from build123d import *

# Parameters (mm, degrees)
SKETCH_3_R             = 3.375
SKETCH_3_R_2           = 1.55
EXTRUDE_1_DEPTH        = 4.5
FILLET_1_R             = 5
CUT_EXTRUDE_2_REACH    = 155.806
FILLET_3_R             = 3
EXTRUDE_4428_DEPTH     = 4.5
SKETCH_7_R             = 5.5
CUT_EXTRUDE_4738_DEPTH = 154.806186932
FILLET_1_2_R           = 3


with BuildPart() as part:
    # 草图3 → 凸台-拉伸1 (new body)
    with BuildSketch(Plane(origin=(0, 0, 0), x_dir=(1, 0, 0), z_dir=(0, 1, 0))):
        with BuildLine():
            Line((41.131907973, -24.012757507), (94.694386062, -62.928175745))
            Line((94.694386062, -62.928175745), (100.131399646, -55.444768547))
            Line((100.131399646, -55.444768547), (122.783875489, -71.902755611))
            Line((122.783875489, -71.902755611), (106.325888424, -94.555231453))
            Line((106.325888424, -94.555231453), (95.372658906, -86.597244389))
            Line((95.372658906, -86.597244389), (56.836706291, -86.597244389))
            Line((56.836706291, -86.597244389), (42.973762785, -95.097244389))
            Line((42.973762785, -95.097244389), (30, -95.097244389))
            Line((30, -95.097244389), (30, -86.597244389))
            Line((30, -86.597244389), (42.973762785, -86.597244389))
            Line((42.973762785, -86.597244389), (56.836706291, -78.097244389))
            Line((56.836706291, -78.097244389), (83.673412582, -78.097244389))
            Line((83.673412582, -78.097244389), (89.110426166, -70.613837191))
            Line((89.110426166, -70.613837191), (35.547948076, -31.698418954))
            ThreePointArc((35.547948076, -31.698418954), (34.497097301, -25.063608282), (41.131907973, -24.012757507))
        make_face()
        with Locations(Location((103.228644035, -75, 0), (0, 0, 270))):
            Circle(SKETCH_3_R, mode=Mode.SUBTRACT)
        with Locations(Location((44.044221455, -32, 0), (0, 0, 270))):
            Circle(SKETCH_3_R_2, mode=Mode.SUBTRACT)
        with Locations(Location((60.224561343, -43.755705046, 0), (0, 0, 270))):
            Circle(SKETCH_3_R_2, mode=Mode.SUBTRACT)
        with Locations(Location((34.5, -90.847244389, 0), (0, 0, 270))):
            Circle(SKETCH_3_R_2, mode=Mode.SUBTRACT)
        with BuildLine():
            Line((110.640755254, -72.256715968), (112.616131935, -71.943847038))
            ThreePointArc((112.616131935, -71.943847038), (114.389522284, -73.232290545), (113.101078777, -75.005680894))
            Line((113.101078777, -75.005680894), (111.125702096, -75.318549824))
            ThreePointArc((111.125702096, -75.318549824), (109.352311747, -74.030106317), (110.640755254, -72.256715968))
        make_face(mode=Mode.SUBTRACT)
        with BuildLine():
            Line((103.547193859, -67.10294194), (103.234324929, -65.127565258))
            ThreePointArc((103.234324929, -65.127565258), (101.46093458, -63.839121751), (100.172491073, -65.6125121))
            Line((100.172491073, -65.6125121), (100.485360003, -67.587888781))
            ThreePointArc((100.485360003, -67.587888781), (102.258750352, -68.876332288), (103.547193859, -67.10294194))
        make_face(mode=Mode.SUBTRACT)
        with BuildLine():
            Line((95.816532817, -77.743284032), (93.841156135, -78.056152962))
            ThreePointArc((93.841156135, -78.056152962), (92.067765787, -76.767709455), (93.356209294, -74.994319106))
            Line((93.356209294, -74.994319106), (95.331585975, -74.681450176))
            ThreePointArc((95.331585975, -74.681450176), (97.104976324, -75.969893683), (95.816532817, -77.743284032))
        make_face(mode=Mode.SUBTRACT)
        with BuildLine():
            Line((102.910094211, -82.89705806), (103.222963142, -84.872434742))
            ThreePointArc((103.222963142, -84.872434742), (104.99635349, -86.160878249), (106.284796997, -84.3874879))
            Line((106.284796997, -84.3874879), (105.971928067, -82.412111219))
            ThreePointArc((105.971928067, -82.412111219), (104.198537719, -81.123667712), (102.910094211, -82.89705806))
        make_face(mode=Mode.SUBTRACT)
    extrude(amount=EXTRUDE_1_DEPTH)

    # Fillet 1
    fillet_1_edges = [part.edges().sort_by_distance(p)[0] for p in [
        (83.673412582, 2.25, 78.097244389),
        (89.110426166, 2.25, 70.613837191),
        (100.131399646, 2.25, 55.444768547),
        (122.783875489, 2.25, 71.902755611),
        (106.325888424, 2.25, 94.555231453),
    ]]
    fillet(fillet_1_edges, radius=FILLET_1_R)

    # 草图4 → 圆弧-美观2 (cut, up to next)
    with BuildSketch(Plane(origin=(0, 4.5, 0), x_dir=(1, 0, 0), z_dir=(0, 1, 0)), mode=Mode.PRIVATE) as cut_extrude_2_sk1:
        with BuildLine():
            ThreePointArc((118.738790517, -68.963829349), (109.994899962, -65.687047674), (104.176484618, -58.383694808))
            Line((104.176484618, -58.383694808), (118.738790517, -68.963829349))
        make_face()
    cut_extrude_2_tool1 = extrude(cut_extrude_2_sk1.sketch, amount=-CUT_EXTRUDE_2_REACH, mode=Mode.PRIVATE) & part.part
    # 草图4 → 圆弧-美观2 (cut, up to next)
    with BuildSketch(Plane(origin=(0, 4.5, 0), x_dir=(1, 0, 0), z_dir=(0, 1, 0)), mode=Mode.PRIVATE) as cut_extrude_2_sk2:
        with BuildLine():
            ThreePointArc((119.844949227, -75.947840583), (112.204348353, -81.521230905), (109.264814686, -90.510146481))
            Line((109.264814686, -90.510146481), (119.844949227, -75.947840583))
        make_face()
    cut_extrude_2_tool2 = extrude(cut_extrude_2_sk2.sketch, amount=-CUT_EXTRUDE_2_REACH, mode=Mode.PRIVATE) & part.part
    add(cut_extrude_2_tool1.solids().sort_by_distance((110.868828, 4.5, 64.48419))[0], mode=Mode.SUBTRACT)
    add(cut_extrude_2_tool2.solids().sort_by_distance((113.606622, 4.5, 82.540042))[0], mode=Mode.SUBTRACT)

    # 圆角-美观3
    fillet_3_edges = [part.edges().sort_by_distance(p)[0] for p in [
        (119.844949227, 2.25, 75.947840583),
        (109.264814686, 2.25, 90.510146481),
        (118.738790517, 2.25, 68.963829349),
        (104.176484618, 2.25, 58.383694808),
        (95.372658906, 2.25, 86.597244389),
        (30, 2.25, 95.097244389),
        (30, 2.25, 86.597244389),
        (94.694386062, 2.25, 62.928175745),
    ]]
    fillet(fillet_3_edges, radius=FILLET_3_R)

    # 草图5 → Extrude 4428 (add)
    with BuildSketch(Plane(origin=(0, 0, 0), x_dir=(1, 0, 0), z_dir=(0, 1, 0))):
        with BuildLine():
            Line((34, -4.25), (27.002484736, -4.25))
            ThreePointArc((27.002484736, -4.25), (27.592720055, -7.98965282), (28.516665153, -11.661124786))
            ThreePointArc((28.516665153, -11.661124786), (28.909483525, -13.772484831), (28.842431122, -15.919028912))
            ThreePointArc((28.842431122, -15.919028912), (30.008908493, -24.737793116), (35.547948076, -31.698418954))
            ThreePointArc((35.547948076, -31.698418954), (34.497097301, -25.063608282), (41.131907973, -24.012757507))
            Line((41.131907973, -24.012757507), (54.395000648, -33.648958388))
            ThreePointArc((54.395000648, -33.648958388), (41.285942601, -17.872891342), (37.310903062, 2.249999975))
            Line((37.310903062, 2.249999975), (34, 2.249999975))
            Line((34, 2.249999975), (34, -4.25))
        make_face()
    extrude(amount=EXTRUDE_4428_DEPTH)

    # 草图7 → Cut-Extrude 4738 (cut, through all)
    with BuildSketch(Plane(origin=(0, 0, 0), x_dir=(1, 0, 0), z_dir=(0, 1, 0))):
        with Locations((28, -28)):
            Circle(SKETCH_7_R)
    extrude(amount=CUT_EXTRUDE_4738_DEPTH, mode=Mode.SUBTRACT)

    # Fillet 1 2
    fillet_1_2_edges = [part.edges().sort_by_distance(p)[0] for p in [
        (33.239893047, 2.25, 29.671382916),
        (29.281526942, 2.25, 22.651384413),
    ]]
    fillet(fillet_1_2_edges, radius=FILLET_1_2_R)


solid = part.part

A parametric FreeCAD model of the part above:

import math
import FreeCAD as App
import Part
import Sketcher

V = App.Vector
Q = App.Units.Quantity


def edges_at(feature, points):
    """Names of the edges that pass closest to the given points."""
    edges = feature.Shape.Edges
    near = lambda p: min(range(len(edges)), key=lambda i: edges[i].distToShape(Part.Vertex(*p))[0])
    return sorted({f"Edge{near(p) + 1}" for p in points})

doc = App.newDocument("Part")
body = doc.addObject("PartDesign::Body", "Body")

sketch1 = body.newObject("Sketcher::SketchObject", "Sketch")
sketch1.AttachmentSupport = (doc.getObject("XZ_Plane"), [""])
sketch1.MapMode = "FlatFace"
sketch1.addGeometry([
    Part.LineSegment(V(94.7, 62.9, 0), V(41.1, 24, 0)),
    Part.ArcOfCircle(Part.Circle(V(38.3, 27.9, 0), V(0, 0, 1), 4.8), math.radians(126), math.radians(306)),
    Part.LineSegment(V(35.5, 31.7, 0), V(89.1, 70.6, 0)),
    Part.LineSegment(V(89.1, 70.6, 0), V(83.7, 78.1, 0)),
    Part.LineSegment(V(83.7, 78.1, 0), V(56.8, 78.1, 0)),
    Part.LineSegment(V(56.8, 78.1, 0), V(43, 86.6, 0)),
    Part.LineSegment(V(43, 86.6, 0), V(30, 86.6, 0)),
    Part.LineSegment(V(30, 86.6, 0), V(30, 95.1, 0)),
    Part.LineSegment(V(30, 95.1, 0), V(43, 95.1, 0)),
    Part.LineSegment(V(43, 95.1, 0), V(56.8, 86.6, 0)),
    Part.LineSegment(V(56.8, 86.6, 0), V(95.4, 86.6, 0)),
    Part.LineSegment(V(95.4, 86.6, 0), V(106.3, 94.6, 0)),
    Part.LineSegment(V(106.3, 94.6, 0), V(122.8, 71.9, 0)),
    Part.LineSegment(V(122.8, 71.9, 0), V(100.1, 55.4, 0)),
    Part.LineSegment(V(100.1, 55.4, 0), V(94.7, 62.9, 0)),
    Part.ArcOfCircle(Part.Circle(V(104.4, 82.7, 0), V(0, 0, 1), 1.6), math.radians(171), math.radians(351)),
    Part.LineSegment(V(106, 82.4, 0), V(106.3, 84.4, 0)),
    Part.ArcOfCircle(Part.Circle(V(104.8, 84.6, 0), V(0, 0, 1), 1.6), math.radians(-9), math.radians(171)),
    Part.LineSegment(V(103.2, 84.9, 0), V(102.9, 82.9, 0)),
    Part.LineSegment(V(110.6, 72.3, 0), V(112.6, 71.9, 0)),
    Part.ArcOfCircle(Part.Circle(V(112.9, 73.5, 0), V(0, 0, 1), 1.6), math.radians(-99), math.radians(81)),
    Part.LineSegment(V(113.1, 75, 0), V(111.1, 75.3, 0)),
    Part.ArcOfCircle(Part.Circle(V(110.9, 73.8, 0), V(0, 0, 1), 1.6), math.radians(81), math.radians(261)),
    Part.Circle(V(103.2, 75, 0), V(0, 0, 1), 3.4),
    Part.LineSegment(V(95.8, 77.7, 0), V(93.8, 78.1, 0)),
    Part.ArcOfCircle(Part.Circle(V(93.6, 76.5, 0), V(0, 0, 1), 1.6), math.radians(81), math.radians(261)),
    Part.LineSegment(V(93.4, 75, 0), V(95.3, 74.7, 0)),
    Part.ArcOfCircle(Part.Circle(V(95.6, 76.2, 0), V(0, 0, 1), 1.6), math.radians(-99), math.radians(81)),
    Part.ArcOfCircle(Part.Circle(V(102, 67.3, 0), V(0, 0, 1), 1.6), math.radians(-9), math.radians(171)),
    Part.LineSegment(V(100.5, 67.6, 0), V(100.2, 65.6, 0)),
    Part.ArcOfCircle(Part.Circle(V(101.7, 65.4, 0), V(0, 0, 1), 1.6), math.radians(171), math.radians(351)),
    Part.LineSegment(V(103.2, 65.1, 0), V(103.5, 67.1, 0)),
    Part.Circle(V(34.5, 90.8, 0), V(0, 0, 1), 1.6),
    Part.Circle(V(60.2, 43.8, 0), V(0, 0, 1), 1.6),
    Part.Circle(V(44, 32, 0), V(0, 0, 1), 1.6),
], False)
sketch1.addConstraint([
    Sketcher.Constraint("Tangent", 0, 2, 1, 2),
    Sketcher.Constraint("Tangent", 1, 1, 2, 1),
    Sketcher.Constraint("Coincident", 2, 2, 3, 1),
    Sketcher.Constraint("Coincident", 3, 2, 4, 1),
    Sketcher.Constraint("Coincident", 4, 2, 5, 1),
    Sketcher.Constraint("Coincident", 5, 2, 6, 1),
    Sketcher.Constraint("Coincident", 6, 2, 7, 1),
    Sketcher.Constraint("Coincident", 7, 2, 8, 1),
    Sketcher.Constraint("Coincident", 8, 2, 9, 1),
    Sketcher.Constraint("Coincident", 9, 2, 10, 1),
    Sketcher.Constraint("Coincident", 10, 2, 11, 1),
    Sketcher.Constraint("Coincident", 11, 2, 12, 1),
    Sketcher.Constraint("Coincident", 12, 2, 13, 1),
    Sketcher.Constraint("Coincident", 13, 2, 14, 1),
    Sketcher.Constraint("Coincident", 14, 2, 0, 1),
    Sketcher.Constraint("Tangent", 15, 2, 16, 1),
    Sketcher.Constraint("Tangent", 16, 2, 17, 1),
    Sketcher.Constraint("Tangent", 17, 2, 18, 1),
    Sketcher.Constraint("Tangent", 18, 2, 15, 1),
    Sketcher.Constraint("Tangent", 19, 2, 20, 1),
    Sketcher.Constraint("Tangent", 20, 2, 21, 1),
    Sketcher.Constraint("Tangent", 21, 2, 22, 1),
    Sketcher.Constraint("Tangent", 22, 2, 19, 1),
    Sketcher.Constraint("Tangent", 24, 2, 25, 1),
    Sketcher.Constraint("Tangent", 25, 2, 26, 1),
    Sketcher.Constraint("Tangent", 26, 2, 27, 1),
    Sketcher.Constraint("Tangent", 27, 2, 24, 1),
    Sketcher.Constraint("Tangent", 28, 2, 29, 1),
    Sketcher.Constraint("Tangent", 29, 2, 30, 1),
    Sketcher.Constraint("Tangent", 30, 2, 31, 1),
    Sketcher.Constraint("Tangent", 31, 2, 28, 1),
    Sketcher.Constraint("Horizontal", 4),
    Sketcher.Constraint("Horizontal", 6),
    Sketcher.Constraint("Vertical", 7),
    Sketcher.Constraint("Horizontal", 8),
    Sketcher.Constraint("Horizontal", 10),
    Sketcher.Constraint("Equal", 15, 17),
    Sketcher.Constraint("Equal", 17, 20),
    Sketcher.Constraint("Equal", 20, 22),
    Sketcher.Constraint("Equal", 22, 25),
    Sketcher.Constraint("Equal", 25, 27),
    Sketcher.Constraint("Equal", 27, 28),
    Sketcher.Constraint("Equal", 28, 30),
    Sketcher.Constraint("Equal", 30, 32),
    Sketcher.Constraint("Equal", 32, 33),
    Sketcher.Constraint("Equal", 33, 34),
    Sketcher.Constraint("Parallel", 0, 2),
    Sketcher.Constraint("Perpendicular", 2, 3),
    Sketcher.Constraint("Parallel", 5, 9),
    Sketcher.Constraint("Perpendicular", 3, 11),
    Sketcher.Constraint("Perpendicular", 11, 12),
    Sketcher.Constraint("Perpendicular", 12, 13),
    Sketcher.Constraint("Perpendicular", 13, 14),
    Sketcher.Constraint("Perpendicular", 18, 19),
    Sketcher.Constraint("Parallel", 21, 24),
    Sketcher.Constraint("Perpendicular", 26, 29),
    Sketcher.Constraint("Horizontal", 6, 2, 9, 2),
    Sketcher.Constraint("Vertical", 5, 2, 8, 2),
    Sketcher.Constraint("Vertical", 4, 2, 9, 2),
    Sketcher.Constraint("Equal", 0, 2),
    Sketcher.Constraint("Equal", 12, 13),
    Sketcher.Constraint("Equal", 3, 14),
    Sketcher.Constraint("Equal", 18, 19),
    Sketcher.Constraint("Equal", 21, 24),
    Sketcher.Constraint("Equal", 26, 29),
    Sketcher.Constraint("Diameter", 32, 3.1),
    Sketcher.Constraint("Diameter", 23, 6.75),
    Sketcher.Constraint("Angle", 0, Q("-144 deg")),
    Sketcher.Constraint("Angle", 16, Q("81 deg")),
    Sketcher.Constraint("Radius", 1, 4.75),
    Sketcher.Constraint("Distance", 12, 28.0),
    Sketcher.Constraint("Distance", 16, 2.0),
    Sketcher.Constraint("DistanceY", 7, 1, 7, 2, 8.5),
    Sketcher.Constraint("DistanceY", -1, 1, 23, 3, 75.0),
    Sketcher.Constraint("DistanceY", -1, 1, 34, 3, 32.0),
    Sketcher.Constraint("DistanceX", -1, 1, 6, 2, 30.0),
    Sketcher.Constraint("DistanceX", -1, 1, 32, 3, 34.5),
    Sketcher.Constraint("Distance", 3, 9.25),
    Sketcher.Constraint("DistanceY", 4, 2, 32, 3, 12.75),
    Sketcher.Constraint("DistanceX", -1, 1, 13, 2, 100.1314),
    Sketcher.Constraint("DistanceX", 1, 3, 22, 3, 72.543301),
    Sketcher.Constraint("DistanceX", 33, 3, 27, 3, 35.349498),
    Sketcher.Constraint("DistanceX", 0, 2, 30, 3, 60.5715),
    Sketcher.Constraint("DistanceY", 2, 2, 25, 3, 5.911399),
    Sketcher.Constraint("DistanceY", 30, 3, 2, 2, 5.243799),
    Sketcher.Constraint("DistanceX", 3, 2, 15, 3, 20.767599),
    Sketcher.Constraint("DistanceX", 5, 2, 33, 3, 17.250799),
    Sketcher.Constraint("DistanceX", 10, 2, 27, 3, 0.2014),
    Sketcher.Constraint("DistanceX", 28, 3, 12, 2, 20.767599),
    Sketcher.Constraint("Distance", 5, 16.261341),
    Sketcher.Constraint("DistanceY", -1, 1, 1, 3, 27.855588),
    Sketcher.Constraint("DistanceY", -1, 1, 17, 3, 84.629961),
    Sketcher.Constraint("DistanceX", -1, 1, 34, 3, 44.044221),
    Sketcher.Constraint("DistanceY", -1, 1, 20, 2, 75.005681),
    Sketcher.Constraint("DistanceX", 23, 3, 20, 3, 9.629961),
    Sketcher.Constraint("DistanceY", 33, 3, 25, 3, 32.769531),
])
pad1 = body.newObject("PartDesign::Pad", "Pad")
pad1.Profile = sketch1
pad1.Length = 4.5
pad1.Reversed = True
doc.recompute()

fillet = body.newObject("PartDesign::Fillet", "Fillet")
fillet.Base = (pad1, edges_at(pad1, [
    (83.673, 2.25, 78.097),
    (89.11, 2.25, 70.614),
    (100.131, 2.25, 55.445),
    (122.784, 2.25, 71.903),
    (106.326, 2.25, 94.555),
]))
fillet.Radius = 5

sketch2 = body.newObject("Sketcher::SketchObject", "Sketch001")
sketch2.AttachmentSupport = (doc.getObject("XZ_Plane"), [""])
sketch2.MapMode = "FlatFace"
sketch2.AttachmentOffset = App.Placement(V(0, 0, -4.5), App.Rotation())
sketch2.addGeometry([
    Part.ArcOfCircle(Part.Circle(V(120, 52, 0), V(0, 0, 1), 18), math.radians(95), math.radians(157)),
    Part.LineSegment(V(119, 69, 0), V(104, 58, 0)),
], False)
sketch2.addConstraint([
    Sketcher.Constraint("Coincident", 0, 1, 1, 1),
    Sketcher.Constraint("Coincident", 1, 2, 0, 2),
    Sketcher.Constraint("Angle", 1, Q("-144 deg")),
    Sketcher.Constraint("Distance", 1, 18.0),
    Sketcher.Constraint("Radius", 0, 17.518765),
    Sketcher.Constraint("DistanceX", -1, 1, 0, 3, 120.292172),
    Sketcher.Constraint("DistanceY", -1, 1, 0, 3, 51.514069),
])
pocket1 = body.newObject("PartDesign::Pocket", "Pocket")
pocket1.Profile = sketch2
pocket1.Type = "UpToFirst"
pocket1.Reversed = True

sketch3 = body.newObject("Sketcher::SketchObject", "Sketch002")
sketch3.AttachmentSupport = (doc.getObject("XZ_Plane"), [""])
sketch3.MapMode = "FlatFace"
sketch3.AttachmentOffset = App.Placement(V(0, 0, -4.5), App.Rotation())
sketch3.addGeometry([
    Part.ArcOfCircle(Part.Circle(V(125, 91, 0), V(0, 0, 1), 15), math.radians(-180), math.radians(-108)),
    Part.LineSegment(V(109, 91, 0), V(120, 76, 0)),
], False)
sketch3.addConstraint([
    Sketcher.Constraint("Coincident", 0, 1, 1, 1),
    Sketcher.Constraint("Coincident", 1, 2, 0, 2),
    Sketcher.Constraint("Angle", 1, Q("-54 deg")),
    Sketcher.Constraint("Distance", 1, 18.0),
    Sketcher.Constraint("Radius", 0, 15.392178),
    Sketcher.Constraint("DistanceX", -1, 1, 0, 3, 124.656882),
    Sketcher.Constraint("DistanceY", -1, 1, 1, 2, 75.947841),
])
pocket2 = body.newObject("PartDesign::Pocket", "Pocket001")
pocket2.Profile = sketch3
pocket2.Type = "UpToFirst"
pocket2.Reversed = True
doc.recompute()

fillet2 = body.newObject("PartDesign::Fillet", "Fillet001")
fillet2.Base = (pocket2, edges_at(pocket2, [
    (119.845, 2.25, 75.948),
    (109.265, 2.25, 90.51),
    (118.739, 2.25, 68.964),
    (104.176, 2.25, 58.384),
    (95.373, 2.25, 86.597),
    (30, 2.25, 95.097),
    (30, 2.25, 86.597),
    (94.694, 2.25, 62.928),
]))
fillet2.Radius = 3

sketch4 = body.newObject("Sketcher::SketchObject", "Sketch003")
sketch4.AttachmentSupport = (doc.getObject("XZ_Plane"), [""])
sketch4.MapMode = "FlatFace"
sketch4.addGeometry([
    Part.LineSegment(V(34, 4.2, 0), V(27, 4.2, 0)),
    Part.ArcOfCircle(Part.Circle(V(68.8, -0.4, 0), V(0, 0, 1), 42.1), math.radians(163.3), math.radians(173.61)),
    Part.ArcOfCircle(Part.Circle(V(18.9, 14.5, 0), V(0, 0, 1), 10), math.radians(-17), math.radians(8)),
    Part.ArcOfCircle(Part.Circle(V(45.3, 18.2, 0), V(0, 0, 1), 16.7), math.radians(126), math.radians(188)),
    Part.ArcOfCircle(Part.Circle(V(38.3, 27.9, 0), V(0, 0, 1), 4.8), math.radians(126), math.radians(306)),
    Part.LineSegment(V(41.1, 24, 0), V(54.4, 33.6, 0)),
    Part.ArcOfCircle(Part.Circle(V(78.8, 0, 0), V(0, 0, 1), 41.6), math.radians(126), math.radians(183)),
    Part.LineSegment(V(37.3, -2.2, 0), V(34, -2.2, 0)),
    Part.LineSegment(V(34, -2.2, 0), V(34, 4.2, 0)),
], False)
sketch4.addConstraint([
    Sketcher.Constraint("Coincident", 0, 2, 1, 2),
    Sketcher.Constraint("Tangent", 1, 1, 2, 1),
    Sketcher.Constraint("Tangent", 2, 2, 3, 2),
    Sketcher.Constraint("Tangent", 3, 1, 4, 1),
    Sketcher.Constraint("Tangent", 4, 2, 5, 1),
    Sketcher.Constraint("Tangent", 5, 2, 6, 1),
    Sketcher.Constraint("Coincident", 6, 2, 7, 1),
    Sketcher.Constraint("Coincident", 7, 2, 8, 1),
    Sketcher.Constraint("Coincident", 8, 2, 0, 1),
    Sketcher.Constraint("Horizontal", 0),
    Sketcher.Constraint("Horizontal", 7),
    Sketcher.Constraint("Vertical", 8),
    Sketcher.Constraint("PointOnObject", 6, 3, -1),
    Sketcher.Constraint("Radius", 2, 10.0),
    Sketcher.Constraint("Angle", 5, Q("36 deg")),
    Sketcher.Constraint("Radius", 4, 4.75),
    Sketcher.Constraint("DistanceY", 8, 1, 8, 2, 6.5),
    Sketcher.Constraint("DistanceX", -1, 1, 7, 2, 34.0),
    Sketcher.Constraint("Radius", 6, 41.5924),
    Sketcher.Constraint("DistanceY", -1, 1, 0, 2, 4.25),
    Sketcher.Constraint("Radius", 1, 42.082288),
    Sketcher.Constraint("DistanceX", -1, 1, 5, 2, 54.395001),
    Sketcher.Constraint("Radius", 3, 16.655717),
    Sketcher.Constraint("DistanceX", 2, 2, 3, 3, 16.495502),
    Sketcher.Constraint("DistanceY", 4, 2, 5, 2, 9.636201),
    Sketcher.Constraint("DistanceX", 0, 2, 0, 1, 6.997515),
    Sketcher.Constraint("DistanceY", -1, 1, 2, 3, 14.535341),
])
pad2 = body.newObject("PartDesign::Pad", "Pad001")
pad2.Profile = sketch4
pad2.Length = 4.5
pad2.Reversed = True

sketch5 = body.newObject("Sketcher::SketchObject", "Sketch004")
sketch5.AttachmentSupport = (doc.getObject("XZ_Plane"), [""])
sketch5.MapMode = "FlatFace"
sketch5.addGeometry(Part.Circle(V(28, 28, 0), V(0, 0, 1), 6), False)
sketch5.addConstraint([
    Sketcher.Constraint("Diameter", 0, 11.0),
    Sketcher.Constraint("DistanceX", -1, 1, 0, 3, 28.0),
    Sketcher.Constraint("DistanceY", -1, 1, 0, 3, 28.0),
])
pocket3 = body.newObject("PartDesign::Pocket", "Pocket002")
pocket3.Profile = sketch5
pocket3.Type = "ThroughAll"
doc.recompute()

fillet3 = body.newObject("PartDesign::Fillet", "Fillet002")
fillet3.Base = (pocket3, edges_at(pocket3, [(33.24, 2.25, 29.671), (29.282, 2.25, 22.651)]))
fillet3.Radius = 3

doc.recompute()
